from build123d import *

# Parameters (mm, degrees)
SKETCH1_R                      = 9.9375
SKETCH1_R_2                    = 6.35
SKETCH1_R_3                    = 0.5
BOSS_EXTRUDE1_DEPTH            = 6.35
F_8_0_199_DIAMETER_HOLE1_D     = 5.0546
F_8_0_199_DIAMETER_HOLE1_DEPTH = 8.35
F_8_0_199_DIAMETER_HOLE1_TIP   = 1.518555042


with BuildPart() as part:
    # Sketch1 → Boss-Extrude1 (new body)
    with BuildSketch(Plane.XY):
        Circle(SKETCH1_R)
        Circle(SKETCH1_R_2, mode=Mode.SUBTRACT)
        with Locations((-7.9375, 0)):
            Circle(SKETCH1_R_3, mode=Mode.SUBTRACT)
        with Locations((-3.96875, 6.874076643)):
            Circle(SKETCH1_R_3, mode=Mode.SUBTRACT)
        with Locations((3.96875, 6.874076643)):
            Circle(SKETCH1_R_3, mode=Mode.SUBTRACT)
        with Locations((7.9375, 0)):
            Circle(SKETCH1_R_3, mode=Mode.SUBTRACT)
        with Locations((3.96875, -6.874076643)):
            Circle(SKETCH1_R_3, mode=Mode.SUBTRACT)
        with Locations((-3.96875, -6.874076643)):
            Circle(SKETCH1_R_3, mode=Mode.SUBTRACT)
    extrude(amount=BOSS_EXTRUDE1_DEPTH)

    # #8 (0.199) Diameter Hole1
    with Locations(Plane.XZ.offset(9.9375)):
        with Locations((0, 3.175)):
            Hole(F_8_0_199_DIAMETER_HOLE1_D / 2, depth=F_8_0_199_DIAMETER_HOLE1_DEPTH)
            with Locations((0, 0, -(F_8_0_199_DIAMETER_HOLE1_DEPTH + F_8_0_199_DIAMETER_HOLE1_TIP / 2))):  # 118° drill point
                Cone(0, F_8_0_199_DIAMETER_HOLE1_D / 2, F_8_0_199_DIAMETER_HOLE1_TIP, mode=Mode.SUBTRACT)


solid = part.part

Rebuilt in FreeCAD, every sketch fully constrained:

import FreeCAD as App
import Part
import Sketcher

V = App.Vector
Q = App.Units.Quantity

doc = App.newDocument("Part")
body = doc.addObject("PartDesign::Body", "Body")

# Sketch on XY plane
sketch1 = body.newObject("Sketcher::SketchObject", "Sketch")
sketch1.AttachmentSupport = (doc.getObject("XY_Plane"), [""])
sketch1.MapMode = "FlatFace"
sketch1.addGeometry(Part.Circle(V(0, 0, 0), V(0, 0, 1), 9.9), False)
sketch1.addGeometry(Part.Circle(V(-4, -6.9, 0), V(0, 0, 1), 0.5), False)
sketch1.addGeometry(Part.Circle(V(4, -6.9, 0), V(0, 0, 1), 0.5), False)
sketch1.addGeometry(Part.Circle(V(-7.9, 0, 0), V(0, 0, 1), 0.5), False)
sketch1.addGeometry(Part.Circle(V(-4, 6.9, 0), V(0, 0, 1), 0.5), False)
sketch1.addGeometry(Part.Circle(V(0, 0, 0), V(0, 0, 1), 6.3), False)
sketch1.addGeometry(Part.Circle(V(7.9, 0, 0), V(0, 0, 1), 0.5), False)
sketch1.addGeometry(Part.Circle(V(4, 6.9, 0), V(0, 0, 1), 0.5), False)
sketch1.addConstraint(Sketcher.Constraint("Coincident", 0, 3, -1, 1))
sketch1.addConstraint(Sketcher.Constraint("Coincident", 5, 3, -1, 1))
sketch1.addConstraint(Sketcher.Constraint("Equal", 1, 2))
sketch1.addConstraint(Sketcher.Constraint("Equal", 2, 3))
sketch1.addConstraint(Sketcher.Constraint("Equal", 3, 4))
sketch1.addConstraint(Sketcher.Constraint("Equal", 4, 6))
sketch1.addConstraint(Sketcher.Constraint("Equal", 6, 7))
sketch1.addConstraint(Sketcher.Constraint("Symmetric", 2, 3, 4, 3, -1, 1))
sketch1.addConstraint(Sketcher.Constraint("Symmetric", 3, 3, 6, 3, -1, 1))
sketch1.addConstraint(Sketcher.Constraint("Symmetric", 1, 3, 7, 3, -1, 1))
sketch1.addConstraint(Sketcher.Constraint("Symmetric", 1, 3, 2, 3, -2))
sketch1.addConstraint(Sketcher.Constraint("PointOnObject", 3, 3, -1))
sketch1.addConstraint(Sketcher.Constraint("Diameter", 5, Q("0.5 in")))
sketch1.addConstraint(Sketcher.Constraint("Diameter", 0, 19.875))
sketch1.addConstraint(Sketcher.Constraint("Diameter", 1, 1.0))
sketch1.addConstraint(Sketcher.Constraint("DistanceX", 1, 3, -1, 1, Q("0.15625 in")))
sketch1.addConstraint(Sketcher.Constraint("DistanceX", 3, 3, -1, 1, Q("0.3125 in")))
sketch1.addConstraint(Sketcher.Constraint("DistanceY", 1, 3, -1, 1, 6.874077))
pad1 = body.newObject("PartDesign::Pad", "Pad")
pad1.Profile = sketch1
pad1.Length = Q("0.25 in")

# Sketch on XZ plane
sketch2 = body.newObject("Sketcher::SketchObject", "Sketch001")
sketch2.AttachmentSupport = (doc.getObject("XZ_Plane"), [""])
sketch2.MapMode = "FlatFace"
sketch2.AttachmentOffset = App.Placement(V(0, 0, 9.9375), App.Rotation())
sketch2.addGeometry(Part.Circle(V(0, 3.2, 0), V(0, 0, 1), 2.5), False)
sketch2.addConstraint(Sketcher.Constraint("PointOnObject", 0, 3, -2))
sketch2.addConstraint(Sketcher.Constraint("Diameter", 0, Q("0.199 in")))
sketch2.addConstraint(Sketcher.Constraint("DistanceY", -1, 1, 0, 3, Q("0.125 in")))
doc.recompute()
hole = body.newObject("PartDesign::Hole", "Hole")
hole.Profile = sketch2
hole.ThreadType = "None"
hole.Diameter = Q("0.199 in")
hole.DepthType = "Dimension"
hole.Depth = 8.35
hole.DrillPoint = "Angled"
hole.DrillPointAngle = 118

doc.recompute()
